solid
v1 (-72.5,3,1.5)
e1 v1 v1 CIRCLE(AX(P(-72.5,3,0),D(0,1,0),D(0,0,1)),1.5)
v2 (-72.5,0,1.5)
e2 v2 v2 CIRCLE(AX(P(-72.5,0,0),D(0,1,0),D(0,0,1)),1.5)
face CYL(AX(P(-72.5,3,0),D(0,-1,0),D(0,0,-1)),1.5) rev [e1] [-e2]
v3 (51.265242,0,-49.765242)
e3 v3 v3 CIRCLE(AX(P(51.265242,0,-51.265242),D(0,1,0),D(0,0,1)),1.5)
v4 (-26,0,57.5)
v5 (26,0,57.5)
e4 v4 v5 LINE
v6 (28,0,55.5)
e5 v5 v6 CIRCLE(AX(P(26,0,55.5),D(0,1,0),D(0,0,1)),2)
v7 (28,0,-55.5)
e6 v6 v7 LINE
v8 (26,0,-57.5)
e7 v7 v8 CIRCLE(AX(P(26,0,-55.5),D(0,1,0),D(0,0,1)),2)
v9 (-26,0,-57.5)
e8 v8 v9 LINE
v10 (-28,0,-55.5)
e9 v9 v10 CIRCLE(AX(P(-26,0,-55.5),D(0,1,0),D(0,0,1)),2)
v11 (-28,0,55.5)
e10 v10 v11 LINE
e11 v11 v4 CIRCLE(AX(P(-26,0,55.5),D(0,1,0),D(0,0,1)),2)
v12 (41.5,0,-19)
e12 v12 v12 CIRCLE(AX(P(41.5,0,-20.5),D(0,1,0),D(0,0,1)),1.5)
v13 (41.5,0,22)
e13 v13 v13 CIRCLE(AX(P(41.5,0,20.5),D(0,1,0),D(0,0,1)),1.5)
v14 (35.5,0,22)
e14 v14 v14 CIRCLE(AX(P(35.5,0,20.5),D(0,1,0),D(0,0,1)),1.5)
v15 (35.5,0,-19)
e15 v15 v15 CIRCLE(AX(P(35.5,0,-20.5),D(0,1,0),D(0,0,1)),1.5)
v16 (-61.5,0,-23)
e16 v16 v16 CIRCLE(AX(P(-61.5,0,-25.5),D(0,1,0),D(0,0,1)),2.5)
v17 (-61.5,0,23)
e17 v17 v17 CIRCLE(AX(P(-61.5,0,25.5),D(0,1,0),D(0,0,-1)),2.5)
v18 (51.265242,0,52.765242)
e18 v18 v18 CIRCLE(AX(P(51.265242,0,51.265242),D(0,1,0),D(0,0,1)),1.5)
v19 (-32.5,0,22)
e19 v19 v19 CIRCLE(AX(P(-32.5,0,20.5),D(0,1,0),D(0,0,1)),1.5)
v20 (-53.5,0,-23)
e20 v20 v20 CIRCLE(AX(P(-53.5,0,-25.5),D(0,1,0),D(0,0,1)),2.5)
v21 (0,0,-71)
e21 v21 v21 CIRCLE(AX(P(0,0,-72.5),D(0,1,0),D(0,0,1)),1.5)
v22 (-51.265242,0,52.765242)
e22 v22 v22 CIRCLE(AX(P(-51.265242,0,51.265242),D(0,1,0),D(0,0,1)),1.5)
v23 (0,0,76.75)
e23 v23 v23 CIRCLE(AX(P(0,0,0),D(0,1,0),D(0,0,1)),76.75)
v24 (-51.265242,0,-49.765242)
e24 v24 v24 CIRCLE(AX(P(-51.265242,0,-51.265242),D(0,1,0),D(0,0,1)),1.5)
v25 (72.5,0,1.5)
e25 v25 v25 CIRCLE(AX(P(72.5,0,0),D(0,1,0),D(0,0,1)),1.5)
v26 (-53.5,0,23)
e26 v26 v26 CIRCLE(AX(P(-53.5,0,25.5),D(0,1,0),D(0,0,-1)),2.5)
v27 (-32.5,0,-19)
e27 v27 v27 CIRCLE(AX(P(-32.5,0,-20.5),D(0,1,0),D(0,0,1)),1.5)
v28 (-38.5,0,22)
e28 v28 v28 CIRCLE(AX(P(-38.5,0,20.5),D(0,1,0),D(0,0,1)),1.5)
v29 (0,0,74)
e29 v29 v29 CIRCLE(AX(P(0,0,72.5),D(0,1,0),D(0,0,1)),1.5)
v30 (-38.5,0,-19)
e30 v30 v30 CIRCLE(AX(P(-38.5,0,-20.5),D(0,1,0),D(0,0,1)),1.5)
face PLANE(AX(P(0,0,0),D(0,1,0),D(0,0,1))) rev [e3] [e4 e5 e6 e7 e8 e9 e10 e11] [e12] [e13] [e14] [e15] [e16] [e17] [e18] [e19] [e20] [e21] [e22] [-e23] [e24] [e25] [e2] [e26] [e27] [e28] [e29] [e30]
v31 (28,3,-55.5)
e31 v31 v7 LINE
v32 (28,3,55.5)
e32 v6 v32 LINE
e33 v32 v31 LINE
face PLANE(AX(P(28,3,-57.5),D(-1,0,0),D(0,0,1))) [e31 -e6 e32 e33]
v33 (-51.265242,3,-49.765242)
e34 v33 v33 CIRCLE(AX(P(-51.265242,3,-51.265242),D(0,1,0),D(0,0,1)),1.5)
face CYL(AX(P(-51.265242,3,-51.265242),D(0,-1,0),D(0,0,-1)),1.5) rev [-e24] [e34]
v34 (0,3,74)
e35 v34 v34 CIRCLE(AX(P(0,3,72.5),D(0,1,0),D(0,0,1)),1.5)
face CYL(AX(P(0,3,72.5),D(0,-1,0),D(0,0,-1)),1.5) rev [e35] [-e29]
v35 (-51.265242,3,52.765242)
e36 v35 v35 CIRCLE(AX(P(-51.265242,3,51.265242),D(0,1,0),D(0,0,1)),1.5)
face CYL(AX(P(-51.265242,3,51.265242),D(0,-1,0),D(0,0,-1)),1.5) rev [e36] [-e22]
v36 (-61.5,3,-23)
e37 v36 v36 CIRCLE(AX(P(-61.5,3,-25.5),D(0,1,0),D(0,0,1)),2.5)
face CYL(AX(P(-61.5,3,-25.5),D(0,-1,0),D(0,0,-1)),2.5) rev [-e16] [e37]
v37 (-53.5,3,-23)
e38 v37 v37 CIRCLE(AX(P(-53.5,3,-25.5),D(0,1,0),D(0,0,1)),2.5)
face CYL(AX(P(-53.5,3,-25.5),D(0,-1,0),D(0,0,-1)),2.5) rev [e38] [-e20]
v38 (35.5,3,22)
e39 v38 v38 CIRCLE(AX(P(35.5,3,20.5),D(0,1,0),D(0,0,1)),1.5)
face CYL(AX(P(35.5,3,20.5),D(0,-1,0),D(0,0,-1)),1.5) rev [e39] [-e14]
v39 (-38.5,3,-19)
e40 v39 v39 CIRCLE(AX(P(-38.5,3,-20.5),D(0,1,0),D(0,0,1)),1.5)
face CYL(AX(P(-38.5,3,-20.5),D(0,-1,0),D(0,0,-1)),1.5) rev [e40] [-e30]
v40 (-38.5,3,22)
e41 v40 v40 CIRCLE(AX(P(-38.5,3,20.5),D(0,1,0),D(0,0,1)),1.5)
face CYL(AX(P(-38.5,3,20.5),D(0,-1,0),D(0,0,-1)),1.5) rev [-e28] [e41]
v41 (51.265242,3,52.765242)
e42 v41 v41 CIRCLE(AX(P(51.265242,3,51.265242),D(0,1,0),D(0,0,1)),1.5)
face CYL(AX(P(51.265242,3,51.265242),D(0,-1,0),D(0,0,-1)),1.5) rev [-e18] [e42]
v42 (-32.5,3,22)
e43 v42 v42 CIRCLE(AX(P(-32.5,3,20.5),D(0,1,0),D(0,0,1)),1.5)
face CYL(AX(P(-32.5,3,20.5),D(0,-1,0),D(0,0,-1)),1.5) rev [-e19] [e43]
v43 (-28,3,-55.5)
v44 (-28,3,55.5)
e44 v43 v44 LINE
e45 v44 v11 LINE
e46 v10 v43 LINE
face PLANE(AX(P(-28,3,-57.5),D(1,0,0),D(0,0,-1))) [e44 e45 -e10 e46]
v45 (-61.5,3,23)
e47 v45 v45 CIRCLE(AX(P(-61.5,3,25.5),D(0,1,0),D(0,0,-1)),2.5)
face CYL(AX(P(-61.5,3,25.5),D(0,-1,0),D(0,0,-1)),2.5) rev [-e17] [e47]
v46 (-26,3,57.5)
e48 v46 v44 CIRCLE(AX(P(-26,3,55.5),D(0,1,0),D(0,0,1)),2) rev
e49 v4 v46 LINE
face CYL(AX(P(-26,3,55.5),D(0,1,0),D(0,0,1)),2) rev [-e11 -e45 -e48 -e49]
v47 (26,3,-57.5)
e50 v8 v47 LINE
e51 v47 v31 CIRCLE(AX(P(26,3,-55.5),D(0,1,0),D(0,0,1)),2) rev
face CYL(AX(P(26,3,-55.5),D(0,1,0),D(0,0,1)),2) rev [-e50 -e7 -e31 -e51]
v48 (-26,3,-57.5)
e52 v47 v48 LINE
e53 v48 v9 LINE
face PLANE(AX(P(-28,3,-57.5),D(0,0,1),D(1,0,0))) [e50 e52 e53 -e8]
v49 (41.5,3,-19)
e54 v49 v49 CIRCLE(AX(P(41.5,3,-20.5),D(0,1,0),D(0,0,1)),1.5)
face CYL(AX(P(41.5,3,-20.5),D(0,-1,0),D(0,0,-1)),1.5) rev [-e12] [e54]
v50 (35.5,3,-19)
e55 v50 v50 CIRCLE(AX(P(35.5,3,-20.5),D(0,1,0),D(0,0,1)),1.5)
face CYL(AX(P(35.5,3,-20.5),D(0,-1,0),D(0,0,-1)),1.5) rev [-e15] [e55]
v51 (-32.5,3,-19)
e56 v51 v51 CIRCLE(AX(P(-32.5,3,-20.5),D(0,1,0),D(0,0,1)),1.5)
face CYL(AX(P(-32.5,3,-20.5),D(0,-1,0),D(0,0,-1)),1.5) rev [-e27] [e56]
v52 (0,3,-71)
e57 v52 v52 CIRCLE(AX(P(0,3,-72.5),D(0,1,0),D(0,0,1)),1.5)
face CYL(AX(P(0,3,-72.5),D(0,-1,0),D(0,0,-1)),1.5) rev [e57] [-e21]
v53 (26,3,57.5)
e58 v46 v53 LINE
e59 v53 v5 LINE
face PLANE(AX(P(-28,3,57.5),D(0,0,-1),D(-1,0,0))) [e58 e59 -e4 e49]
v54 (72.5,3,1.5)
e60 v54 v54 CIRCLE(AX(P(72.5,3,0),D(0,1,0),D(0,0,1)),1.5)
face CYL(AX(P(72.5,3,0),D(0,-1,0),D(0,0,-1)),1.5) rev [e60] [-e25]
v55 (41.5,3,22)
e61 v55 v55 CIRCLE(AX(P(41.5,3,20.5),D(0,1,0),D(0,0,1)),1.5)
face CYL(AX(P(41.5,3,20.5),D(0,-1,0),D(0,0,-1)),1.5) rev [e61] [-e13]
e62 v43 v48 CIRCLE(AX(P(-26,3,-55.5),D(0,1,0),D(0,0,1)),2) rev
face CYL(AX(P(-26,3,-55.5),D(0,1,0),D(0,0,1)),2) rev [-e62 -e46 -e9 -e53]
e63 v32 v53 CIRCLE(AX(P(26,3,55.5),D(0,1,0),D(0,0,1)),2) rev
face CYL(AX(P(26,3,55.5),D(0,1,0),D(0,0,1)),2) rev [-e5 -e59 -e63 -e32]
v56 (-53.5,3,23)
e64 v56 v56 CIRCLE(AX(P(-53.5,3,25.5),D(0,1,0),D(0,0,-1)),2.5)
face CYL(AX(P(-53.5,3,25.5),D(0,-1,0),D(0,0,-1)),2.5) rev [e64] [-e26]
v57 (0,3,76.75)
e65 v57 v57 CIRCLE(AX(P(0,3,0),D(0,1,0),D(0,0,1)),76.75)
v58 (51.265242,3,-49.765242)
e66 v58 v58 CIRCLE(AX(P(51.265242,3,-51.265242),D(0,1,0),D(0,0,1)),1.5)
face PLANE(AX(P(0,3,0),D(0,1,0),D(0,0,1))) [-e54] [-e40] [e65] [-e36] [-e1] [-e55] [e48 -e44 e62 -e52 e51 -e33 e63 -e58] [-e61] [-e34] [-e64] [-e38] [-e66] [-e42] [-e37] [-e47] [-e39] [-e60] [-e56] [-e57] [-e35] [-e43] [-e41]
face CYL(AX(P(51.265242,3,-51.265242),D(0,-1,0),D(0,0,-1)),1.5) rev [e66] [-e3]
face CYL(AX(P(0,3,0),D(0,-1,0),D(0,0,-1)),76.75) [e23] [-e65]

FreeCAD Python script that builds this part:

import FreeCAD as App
import Part
import Sketcher


def edges_at(feature, points):
    """Names of the edges that pass closest to the given points."""
    edges = feature.Shape.Edges
    near = lambda p: min(range(len(edges)), key=lambda i: edges[i].distToShape(Part.Vertex(*p))[0])
    return sorted({f"Edge{near(p) + 1}" for p in points})

doc = App.newDocument("Part")
body = doc.addObject("PartDesign::Body", "Body")

# Sketch on XZ plane
sketch1 = doc.addObject("Sketcher::SketchObject", "Sketch")
body.addObject(sketch1)
sketch1.AttachmentSupport = (doc.XZ_Plane, [""])
sketch1.MapMode = "FlatFace"
sketch1.addGeometry([
    Part.Circle(App.Vector(0, 0, 0), App.Vector(0, 0, 1), 76.8),  # 0
    Part.Circle(App.Vector(-51.3, -51.3, 0), App.Vector(0, 0, 1), 1.5),  # 1
    Part.Circle(App.Vector(-61.5, -25.5, 0), App.Vector(0, 0, 1), 2.5),  # 2
    Part.Circle(App.Vector(-53.5, -25.5, 0), App.Vector(0, 0, 1), 2.5),  # 3
    Part.Circle(App.Vector(-38.5, -20.5, 0), App.Vector(0, 0, 1), 1.5),  # 4
    Part.Circle(App.Vector(0, -72.5, 0), App.Vector(0, 0, 1), 1.5),  # 5
    Part.Circle(App.Vector(-32.5, -20.5, 0), App.Vector(0, 0, 1), 1.5),  # 6
    Part.Circle(App.Vector(-72.5, 0, 0), App.Vector(0, 0, 1), 1.5),  # 7
    Part.Circle(App.Vector(-61.5, 25.5, 0), App.Vector(0, 0, 1), 2.5),  # 8
    Part.Circle(App.Vector(-53.5, 25.5, 0), App.Vector(0, 0, 1), 2.5),  # 9
    Part.Circle(App.Vector(-38.5, 20.5, 0), App.Vector(0, 0, 1), 1.5),  # 10
    Part.Circle(App.Vector(-51.3, 51.3, 0), App.Vector(0, 0, 1), 1.5),  # 11
    Part.Circle(App.Vector(-32.5, 20.5, 0), App.Vector(0, 0, 1), 1.5),  # 12
    Part.Circle(App.Vector(35.5, -20.5, 0), App.Vector(0, 0, 1), 1.5),  # 13
    Part.Circle(App.Vector(51.3, -51.3, 0), App.Vector(0, 0, 1), 1.5),  # 14
    Part.Circle(App.Vector(41.5, -20.5, 0), App.Vector(0, 0, 1), 1.5),  # 15
    Part.Circle(App.Vector(72.5, 0, 0), App.Vector(0, 0, 1), 1.5),  # 16
    Part.LineSegment(App.Vector(28, 57.5, 0), App.Vector(-28, 57.5, 0)),  # 17
    Part.LineSegment(App.Vector(-28, 57.5, 0), App.Vector(-28, -57.5, 0)),  # 18
    Part.LineSegment(App.Vector(-28, -57.5, 0), App.Vector(28, -57.5, 0)),  # 19
    Part.LineSegment(App.Vector(28, -57.5, 0), App.Vector(28, 57.5, 0)),  # 20
    Part.Circle(App.Vector(35.5, 20.5, 0), App.Vector(0, 0, 1), 1.5),  # 21
    Part.Circle(App.Vector(0, 72.5, 0), App.Vector(0, 0, 1), 1.5),  # 22
    Part.Circle(App.Vector(41.5, 20.5, 0), App.Vector(0, 0, 1), 1.5),  # 23
    Part.Circle(App.Vector(51.3, 51.3, 0), App.Vector(0, 0, 1), 1.5),  # 24
], False)
sketch1.addConstraint([
    Sketcher.Constraint("Coincident", 17, 2, 18, 1),
    Sketcher.Constraint("Coincident", 18, 2, 19, 1),
    Sketcher.Constraint("Coincident", 19, 2, 20, 1),
    Sketcher.Constraint("Coincident", 20, 2, 17, 1),
    Sketcher.Constraint("Horizontal", 17),
    Sketcher.Constraint("Vertical", 18),
    Sketcher.Constraint("Horizontal", 19),
    Sketcher.Constraint("Vertical", 20),
    Sketcher.Constraint("Coincident", 0, 3, -1, 1),
    Sketcher.Constraint("Equal", 2, 3),
    Sketcher.Constraint("Equal", 1, 4),
    Sketcher.Constraint("Equal", 4, 5),
    Sketcher.Constraint("Equal", 5, 6),
    Sketcher.Constraint("Equal", 6, 7),
    Sketcher.Constraint("Equal", 3, 8),
    Sketcher.Constraint("Equal", 8, 9),
    Sketcher.Constraint("Equal", 7, 10),
    Sketcher.Constraint("Equal", 10, 11),
    Sketcher.Constraint("Equal", 11, 12),
    Sketcher.Constraint("Equal", 12, 13),
    Sketcher.Constraint("Equal", 13, 14),
    Sketcher.Constraint("Equal", 14, 15),
    Sketcher.Constraint("Equal", 15, 16),
    Sketcher.Constraint("Equal", 16, 21),
    Sketcher.Constraint("Equal", 21, 22),
    Sketcher.Constraint("Equal", 22, 23),
    Sketcher.Constraint("Equal", 23, 24),
    Sketcher.Constraint("Symmetric", 11, 3, 14, 3, -1, 1),
    Sketcher.Constraint("Symmetric", 7, 3, 16, 3, -1, 1),
    Sketcher.Constraint("Symmetric", 5, 3, 22, 3, -1, 1),
    Sketcher.Constraint("Symmetric", 1, 3, 24, 3, -1, 1),
    Sketcher.Constraint("Symmetric", 17, 2, 19, 2, -1, 1),
    Sketcher.Constraint("Symmetric", 1, 3, 14, 3, -2),
    Sketcher.Constraint("Symmetric", 2, 3, 8, 3, -1),
    Sketcher.Constraint("Symmetric", 3, 3, 9, 3, -1),
    Sketcher.Constraint("Symmetric", 4, 3, 10, 3, -1),
    Sketcher.Constraint("Symmetric", 6, 3, 12, 3, -1),
    Sketcher.Constraint("Symmetric", 13, 3, 21, 3, -1),
    Sketcher.Constraint("Symmetric", 15, 3, 23, 3, -1),
    Sketcher.Constraint("PointOnObject", 5, 3, -2),
    Sketcher.Constraint("PointOnObject", 7, 3, -1),
    Sketcher.Constraint("Horizontal", 2, 3, 3, 3),
    Sketcher.Constraint("Horizontal", 4, 3, 6, 3),
    Sketcher.Constraint("Horizontal", 6, 3, 13, 3),
    Sketcher.Constraint("Horizontal", 13, 3, 15, 3),
    Sketcher.Constraint("Diameter", 1, 3.0),
    Sketcher.Constraint("Diameter", 2, 5.0),
    Sketcher.Constraint("Diameter", 0, 153.5),
    Sketcher.Constraint("DistanceX", 17, 2, 17, 1, 56.0),
    Sketcher.Constraint("DistanceY", 18, 2, 18, 1, 115.0),
    Sketcher.Constraint("DistanceX", 2, 3, 3, 3, 8.0),
    Sketcher.Constraint("DistanceX", 3, 3, 4, 3, 15.0),
    Sketcher.Constraint("DistanceY", 3, 3, 4, 3, 5.0),
    Sketcher.Constraint("DistanceY", 5, 3, 4, 3, 52.0),
    Sketcher.Constraint("DistanceX", 4, 3, 6, 3, 6.0),
    Sketcher.Constraint("DistanceX", 7, 3, 2, 3, 11.0),
    Sketcher.Constraint("DistanceY", 2, 3, 8, 3, 51.0),
    Sketcher.Constraint("DistanceX", 6, 3, 13, 3, 68.0),
    Sketcher.Constraint("DistanceX", 13, 3, 15, 3, 6.0),
    Sketcher.Constraint("DistanceX", 15, 3, 16, 3, 31.0),
    Sketcher.Constraint("DistanceX", 1, 3, -1, 1, 51.265242),
    Sketcher.Constraint("DistanceY", 1, 3, -1, 1, 51.265242),
])
pad1 = doc.addObject("PartDesign::Pad", "Pad")
body.addObject(pad1)
pad1.Profile = sketch1
pad1.Length = 3
pad1.Reversed = True
doc.recompute()

fillet = doc.addObject("PartDesign::Fillet", "Fillet")
body.addObject(fillet)
fillet.Base = (pad1, edges_at(pad1, [
    (28, 1.5, 57.5),
    (28, 1.5, -57.5),
    (-28, 1.5, -57.5),
    (-28, 1.5, 57.5),
]))
fillet.Radius = 2

doc.recompute()
